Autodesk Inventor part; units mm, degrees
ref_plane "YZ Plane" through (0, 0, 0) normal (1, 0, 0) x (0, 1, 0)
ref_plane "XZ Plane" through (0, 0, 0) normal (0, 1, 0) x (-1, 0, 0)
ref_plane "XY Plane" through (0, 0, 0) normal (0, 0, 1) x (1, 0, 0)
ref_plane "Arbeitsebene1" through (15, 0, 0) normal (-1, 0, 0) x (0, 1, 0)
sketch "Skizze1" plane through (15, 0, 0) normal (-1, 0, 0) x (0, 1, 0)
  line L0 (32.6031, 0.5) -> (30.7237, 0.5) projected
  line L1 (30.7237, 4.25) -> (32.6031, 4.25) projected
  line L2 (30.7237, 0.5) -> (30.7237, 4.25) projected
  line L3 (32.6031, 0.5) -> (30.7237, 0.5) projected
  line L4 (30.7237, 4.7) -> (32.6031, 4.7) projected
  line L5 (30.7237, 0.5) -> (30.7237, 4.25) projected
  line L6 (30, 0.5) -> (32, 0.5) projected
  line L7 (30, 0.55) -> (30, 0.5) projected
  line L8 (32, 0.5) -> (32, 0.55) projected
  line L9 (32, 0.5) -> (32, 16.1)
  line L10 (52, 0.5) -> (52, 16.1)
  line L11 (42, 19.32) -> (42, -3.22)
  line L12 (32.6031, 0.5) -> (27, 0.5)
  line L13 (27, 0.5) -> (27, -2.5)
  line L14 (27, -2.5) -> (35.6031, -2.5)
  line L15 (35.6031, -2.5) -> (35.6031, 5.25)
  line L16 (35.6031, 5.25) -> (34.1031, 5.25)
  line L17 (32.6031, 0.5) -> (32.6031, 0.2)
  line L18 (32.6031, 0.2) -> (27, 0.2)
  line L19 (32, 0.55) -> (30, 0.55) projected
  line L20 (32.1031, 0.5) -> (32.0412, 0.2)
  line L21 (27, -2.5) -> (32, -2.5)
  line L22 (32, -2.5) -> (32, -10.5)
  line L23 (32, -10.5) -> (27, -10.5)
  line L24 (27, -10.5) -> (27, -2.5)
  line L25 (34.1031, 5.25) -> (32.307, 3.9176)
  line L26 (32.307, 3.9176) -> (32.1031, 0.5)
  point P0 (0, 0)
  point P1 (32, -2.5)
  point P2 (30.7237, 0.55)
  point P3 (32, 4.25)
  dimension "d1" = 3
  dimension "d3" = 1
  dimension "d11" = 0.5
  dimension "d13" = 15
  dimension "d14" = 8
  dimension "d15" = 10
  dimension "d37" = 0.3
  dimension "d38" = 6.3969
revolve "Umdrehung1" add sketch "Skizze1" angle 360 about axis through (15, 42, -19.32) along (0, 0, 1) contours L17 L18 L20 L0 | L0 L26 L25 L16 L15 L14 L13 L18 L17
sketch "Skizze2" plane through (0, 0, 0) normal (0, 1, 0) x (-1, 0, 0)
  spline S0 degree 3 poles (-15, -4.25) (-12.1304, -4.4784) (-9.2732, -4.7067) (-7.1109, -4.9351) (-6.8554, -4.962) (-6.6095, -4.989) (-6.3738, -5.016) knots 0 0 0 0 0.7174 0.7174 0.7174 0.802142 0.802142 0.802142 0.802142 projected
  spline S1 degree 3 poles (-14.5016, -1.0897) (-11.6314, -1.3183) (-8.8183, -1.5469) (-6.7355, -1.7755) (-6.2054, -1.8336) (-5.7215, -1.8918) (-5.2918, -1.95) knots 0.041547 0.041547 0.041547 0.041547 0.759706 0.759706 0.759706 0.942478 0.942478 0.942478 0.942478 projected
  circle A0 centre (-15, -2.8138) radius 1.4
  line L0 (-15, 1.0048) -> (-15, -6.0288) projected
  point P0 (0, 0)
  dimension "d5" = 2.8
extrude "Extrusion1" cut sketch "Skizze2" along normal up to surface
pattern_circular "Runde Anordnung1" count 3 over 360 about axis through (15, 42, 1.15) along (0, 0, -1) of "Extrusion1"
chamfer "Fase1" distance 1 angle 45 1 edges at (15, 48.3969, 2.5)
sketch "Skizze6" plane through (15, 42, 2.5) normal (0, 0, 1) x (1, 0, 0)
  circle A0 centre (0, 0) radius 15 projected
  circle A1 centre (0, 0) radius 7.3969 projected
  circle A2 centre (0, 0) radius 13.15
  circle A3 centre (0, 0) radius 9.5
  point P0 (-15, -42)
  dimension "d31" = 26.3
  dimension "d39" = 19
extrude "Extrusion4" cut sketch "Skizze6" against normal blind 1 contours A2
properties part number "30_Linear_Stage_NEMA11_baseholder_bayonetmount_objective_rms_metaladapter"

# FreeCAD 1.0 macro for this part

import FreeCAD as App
import Part
import Sketcher
from FreeCAD import Vector
Q = App.Units.Quantity


def edges_at(feature, points):
    """Names of the edges that pass closest to the given points."""
    edges = feature.Shape.Edges
    near = lambda p: min(range(len(edges)), key=lambda i: edges[i].distToShape(Part.Vertex(*p))[0])
    return sorted({f"Edge{near(p) + 1}" for p in points})


def add_polygon(sketch, points):
    """Adds a closed chain of lines whose ends are joined by coincident constraints."""
    first, n = sketch.GeometryCount, len(points)
    for a, b in zip(points, points[1:] + points[:1]):
        sketch.addGeometry(Part.LineSegment(App.Vector(*a, 0), App.Vector(*b, 0)), False)
    for i in range(n):
        sketch.addConstraint(Sketcher.Constraint("Coincident", first + i, 2, first + (i + 1) % n, 1))

doc = App.newDocument("Part")
body = doc.addObject("PartDesign::Body", "Body")

# Sketch on YZ plane
sketch1 = doc.addObject("Sketcher::SketchObject", "Sketch")
body.addObject(sketch1)
sketch1.AttachmentSupport = (doc.YZ_Plane, [""])
sketch1.MapMode = "FlatFace"
sketch1.AttachmentOffset = App.Placement(Vector(0, 0, 15), App.Rotation())
add_polygon(sketch1, [(32.1, -0.5), (32.04, -0.2), (27, -0.2), (27, 2.5), (35.6, 2.5), (35.6, -5.25), (34.1, -5.25), (32.31, -3.92)])  # lines 0-7
sketch1.addGeometry(Part.LineSegment(Vector(42, -5.25, 0), Vector(42, 2.5, 0)), True)  # axis
sketch1.addConstraint(Sketcher.Constraint("Horizontal", 1))
sketch1.addConstraint(Sketcher.Constraint("Vertical", 2))
sketch1.addConstraint(Sketcher.Constraint("Horizontal", 3))
sketch1.addConstraint(Sketcher.Constraint("Vertical", 4))
sketch1.addConstraint(Sketcher.Constraint("Horizontal", 5))
sketch1.addConstraint(Sketcher.Constraint("Vertical", 8))
sketch1.addConstraint(Sketcher.Constraint("Horizontal", 5, 2, 8, 1))
sketch1.addConstraint(Sketcher.Constraint("Horizontal", 3, 2, 8, 2))
sketch1.addConstraint(Sketcher.Constraint("DistanceY", 7, 2, 3, 2, Q("3 mm")))
sketch1.addConstraint(Sketcher.Constraint("DistanceY", 7, 2, -1, 1, Q("0.5 mm")))
sketch1.addConstraint(Sketcher.Constraint("DistanceY", 7, 2, 0, 2, Q("0.3 mm")))
sketch1.addConstraint(Sketcher.Constraint("DistanceX", 5, 2, 5, 1, Q("1.5 mm")))
sketch1.addConstraint(Sketcher.Constraint("DistanceX", -1, 1, 1, 2, Q("27 mm")))
sketch1.addConstraint(Sketcher.Constraint("DistanceX", -1, 1, 8, 1, Q("42 mm")))
sketch1.addConstraint(Sketcher.Constraint("DistanceX", 7, 2, 5, 2, Q("2 mm")))
sketch1.addConstraint(Sketcher.Constraint("DistanceX", 4, 2, 8, 1, Q("6.397 mm")))
sketch1.addConstraint(Sketcher.Constraint("DistanceY", 4, 2, 4, 1, Q("7.75 mm")))
sketch1.addConstraint(Sketcher.Constraint("Angle", 6, Q("143.431 deg")))
sketch1.addConstraint(Sketcher.Constraint("DistanceX", 1, 2, 1, 1, Q("5.0412 mm")))
sketch1.addConstraint(Sketcher.Constraint("DistanceX", -1, 1, 6, 2, Q("32.307 mm")))
revolution = doc.addObject("PartDesign::Revolution", "Revolution")
body.addObject(revolution)
revolution.Profile = sketch1
revolution.ReferenceAxis = (sketch1, ["Axis0"])
revolution.Angle = 360

# Sketch on XZ plane
sketch2 = doc.addObject("Sketcher::SketchObject", "Sketch001")
body.addObject(sketch2)
sketch2.AttachmentSupport = (doc.XZ_Plane, [""])
sketch2.MapMode = "FlatFace"
sketch2.addGeometry(Part.Circle(Vector(15, -2.8, 0), Vector(0, 0, 1), 1.4), False)
sketch2.addConstraint(Sketcher.Constraint("Diameter", 0, Q("2.8 mm")))
sketch2.addConstraint(Sketcher.Constraint("DistanceX", -1, 1, 0, 3, Q("15 mm")))
sketch2.addConstraint(Sketcher.Constraint("DistanceY", 0, 3, -1, 1, Q("2.8138 mm")))
pocket1 = doc.addObject("PartDesign::Pocket", "Pocket")
body.addObject(pocket1)
pocket1.Profile = sketch2
pocket1.Length = 35.7582
doc.recompute()

datumline = doc.addObject("PartDesign::Line", "DatumLine")
body.addObject(datumline)
datumline.Placement = App.Placement(Vector(15, 42, 0), App.Rotation(Vector(0, 0, 1), Vector(0, 0, 1)))
polarpattern = doc.addObject("PartDesign::PolarPattern", "PolarPattern")
body.addObject(polarpattern)
polarpattern.Originals = [pocket1]
polarpattern.Axis = (datumline, [""])
polarpattern.Angle = 360
polarpattern.Occurrences = 3
body.Tip = polarpattern
doc.recompute()

chamfer = doc.addObject("PartDesign::Chamfer", "Chamfer")
body.addObject(chamfer)
chamfer.Base = (polarpattern, edges_at(polarpattern, [(15, 48.397, 2.5)]))
chamfer.Size = 1

# Sketch on XY plane
sketch3 = doc.addObject("Sketcher::SketchObject", "Sketch002")
body.addObject(sketch3)
sketch3.AttachmentSupport = (doc.XY_Plane, [""])
sketch3.MapMode = "FlatFace"
sketch3.AttachmentOffset = App.Placement(Vector(0, 0, 2.5), App.Rotation())
sketch3.addGeometry(Part.Circle(Vector(15, 42, 0), Vector(0, 0, 1), 13), False)
sketch3.addGeometry(Part.Circle(Vector(15, 42, 0), Vector(0, 0, 1), 10), False)
sketch3.addConstraint(Sketcher.Constraint("Coincident", 1, 3, 0, 3))
sketch3.addConstraint(Sketcher.Constraint("Diameter", 1, Q("19 mm")))
sketch3.addConstraint(Sketcher.Constraint("Diameter", 0, Q("26.3 mm")))
sketch3.addConstraint(Sketcher.Constraint("DistanceX", -1, 1, 0, 3, Q("15 mm")))
sketch3.addConstraint(Sketcher.Constraint("DistanceY", -1, 1, 0, 3, Q("42 mm")))
pocket2 = doc.addObject("PartDesign::Pocket", "Pocket001")
body.addObject(pocket2)
pocket2.Profile = sketch3
pocket2.Length = 1

doc.recompute()
